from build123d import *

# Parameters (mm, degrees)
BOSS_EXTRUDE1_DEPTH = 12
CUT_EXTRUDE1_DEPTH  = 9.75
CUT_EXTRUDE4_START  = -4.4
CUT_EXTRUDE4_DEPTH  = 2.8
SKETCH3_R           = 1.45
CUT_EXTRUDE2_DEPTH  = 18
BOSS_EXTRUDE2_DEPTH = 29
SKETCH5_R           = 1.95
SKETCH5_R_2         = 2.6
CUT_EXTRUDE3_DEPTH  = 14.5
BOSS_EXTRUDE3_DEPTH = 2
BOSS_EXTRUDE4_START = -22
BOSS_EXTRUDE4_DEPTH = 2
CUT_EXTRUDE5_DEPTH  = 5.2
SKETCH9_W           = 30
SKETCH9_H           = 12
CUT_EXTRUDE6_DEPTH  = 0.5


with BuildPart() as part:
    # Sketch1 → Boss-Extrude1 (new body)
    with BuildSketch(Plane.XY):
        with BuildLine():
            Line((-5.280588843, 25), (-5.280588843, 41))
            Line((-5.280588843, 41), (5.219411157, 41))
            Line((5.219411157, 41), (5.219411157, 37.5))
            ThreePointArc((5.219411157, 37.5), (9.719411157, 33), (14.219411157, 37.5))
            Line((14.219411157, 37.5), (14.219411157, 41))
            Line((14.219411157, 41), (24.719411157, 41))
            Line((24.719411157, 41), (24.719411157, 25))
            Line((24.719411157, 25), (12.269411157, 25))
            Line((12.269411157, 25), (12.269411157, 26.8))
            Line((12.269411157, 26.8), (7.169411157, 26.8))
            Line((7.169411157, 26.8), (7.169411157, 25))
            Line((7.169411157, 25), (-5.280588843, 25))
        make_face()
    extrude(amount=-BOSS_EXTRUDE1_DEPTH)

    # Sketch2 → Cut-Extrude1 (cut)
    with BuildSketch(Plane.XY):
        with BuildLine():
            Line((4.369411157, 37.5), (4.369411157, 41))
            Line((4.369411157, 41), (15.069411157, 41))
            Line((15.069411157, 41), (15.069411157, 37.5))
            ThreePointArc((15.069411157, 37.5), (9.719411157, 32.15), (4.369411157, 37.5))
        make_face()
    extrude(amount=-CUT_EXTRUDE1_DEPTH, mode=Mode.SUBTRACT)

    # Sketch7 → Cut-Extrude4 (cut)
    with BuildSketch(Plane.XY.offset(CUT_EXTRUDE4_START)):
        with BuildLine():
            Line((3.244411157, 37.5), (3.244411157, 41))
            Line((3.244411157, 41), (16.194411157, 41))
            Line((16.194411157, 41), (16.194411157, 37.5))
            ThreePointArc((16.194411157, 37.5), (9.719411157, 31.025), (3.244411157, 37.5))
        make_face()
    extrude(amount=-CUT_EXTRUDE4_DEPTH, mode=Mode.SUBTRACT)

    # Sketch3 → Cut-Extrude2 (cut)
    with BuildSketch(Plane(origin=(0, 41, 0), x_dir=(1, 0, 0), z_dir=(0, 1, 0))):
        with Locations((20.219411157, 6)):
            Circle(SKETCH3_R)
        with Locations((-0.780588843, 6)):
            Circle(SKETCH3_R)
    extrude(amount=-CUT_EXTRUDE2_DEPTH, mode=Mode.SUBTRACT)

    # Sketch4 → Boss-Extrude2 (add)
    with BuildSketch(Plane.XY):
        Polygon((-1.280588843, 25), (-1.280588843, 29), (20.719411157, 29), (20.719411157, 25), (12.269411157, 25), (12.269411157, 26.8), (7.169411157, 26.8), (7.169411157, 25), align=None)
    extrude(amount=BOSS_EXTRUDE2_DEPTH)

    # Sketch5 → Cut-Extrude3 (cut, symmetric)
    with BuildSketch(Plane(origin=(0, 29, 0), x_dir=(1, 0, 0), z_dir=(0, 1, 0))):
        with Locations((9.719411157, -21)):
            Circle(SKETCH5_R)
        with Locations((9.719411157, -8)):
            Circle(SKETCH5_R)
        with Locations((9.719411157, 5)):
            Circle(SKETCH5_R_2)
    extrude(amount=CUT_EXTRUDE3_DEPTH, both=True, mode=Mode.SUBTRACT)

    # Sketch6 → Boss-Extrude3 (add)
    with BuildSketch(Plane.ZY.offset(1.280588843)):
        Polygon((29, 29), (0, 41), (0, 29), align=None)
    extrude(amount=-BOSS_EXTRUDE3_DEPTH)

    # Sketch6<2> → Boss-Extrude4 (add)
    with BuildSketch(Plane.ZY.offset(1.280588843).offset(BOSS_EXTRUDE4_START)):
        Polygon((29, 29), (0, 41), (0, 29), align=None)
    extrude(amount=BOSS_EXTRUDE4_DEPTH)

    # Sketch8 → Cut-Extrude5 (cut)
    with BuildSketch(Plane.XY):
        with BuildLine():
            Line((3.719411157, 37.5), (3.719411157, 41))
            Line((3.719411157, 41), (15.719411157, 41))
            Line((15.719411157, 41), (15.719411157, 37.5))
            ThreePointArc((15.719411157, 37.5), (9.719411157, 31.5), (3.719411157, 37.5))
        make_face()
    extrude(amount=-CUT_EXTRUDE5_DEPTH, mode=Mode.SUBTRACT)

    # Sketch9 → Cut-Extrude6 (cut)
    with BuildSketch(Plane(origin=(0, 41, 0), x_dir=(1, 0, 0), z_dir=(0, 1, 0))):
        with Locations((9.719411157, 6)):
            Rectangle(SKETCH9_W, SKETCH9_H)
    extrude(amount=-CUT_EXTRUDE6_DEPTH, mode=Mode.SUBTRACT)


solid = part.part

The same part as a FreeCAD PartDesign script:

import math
import FreeCAD as App
import Part
import Sketcher

V = App.Vector
Q = App.Units.Quantity


def add_polygon(sketch, points):
    """Adds a closed chain of lines whose ends are joined by coincident constraints."""
    first, n = sketch.GeometryCount, len(points)
    for a, b in zip(points, points[1:] + points[:1]):
        sketch.addGeometry(Part.LineSegment(App.Vector(*a, 0), App.Vector(*b, 0)), False)
    for i in range(n):
        sketch.addConstraint(Sketcher.Constraint("Coincident", first + i, 2, first + (i + 1) % n, 1))

doc = App.newDocument("Part")
body = doc.addObject("PartDesign::Body", "Body")

# Sketch on XY plane
sketch1 = body.newObject("Sketcher::SketchObject", "Sketch")
sketch1.AttachmentSupport = (doc.getObject("XY_Plane"), [""])
sketch1.MapMode = "FlatFace"
sketch1.addGeometry([
    Part.LineSegment(V(-5.3, 41, 0), V(-5.3, 25, 0)),  # 0
    Part.LineSegment(V(-5.3, 25, 0), V(7.2, 25, 0)),  # 1
    Part.LineSegment(V(7.2, 25, 0), V(7.2, 26.8, 0)),  # 2
    Part.LineSegment(V(7.2, 26.8, 0), V(12.3, 26.8, 0)),  # 3
    Part.LineSegment(V(12.3, 26.8, 0), V(12.3, 25, 0)),  # 4
    Part.LineSegment(V(12.3, 25, 0), V(24.7, 25, 0)),  # 5
    Part.LineSegment(V(24.7, 25, 0), V(24.7, 41, 0)),  # 6
    Part.LineSegment(V(24.7, 41, 0), V(14.2, 41, 0)),  # 7
    Part.LineSegment(V(14.2, 41, 0), V(14.2, 37.5, 0)),  # 8
    Part.ArcOfCircle(Part.Circle(V(9.7, 37.5, 0), V(0, 0, 1), 4.5), math.radians(180), math.radians(360)),  # 9
    Part.LineSegment(V(5.2, 37.5, 0), V(5.2, 41, 0)),  # 10
    Part.LineSegment(V(5.2, 41, 0), V(-5.3, 41, 0)),  # 11
], False)
sketch1.addConstraint([
    Sketcher.Constraint("Coincident", 0, 2, 1, 1),
    Sketcher.Constraint("Coincident", 1, 2, 2, 1),
    Sketcher.Constraint("Coincident", 2, 2, 3, 1),
    Sketcher.Constraint("Coincident", 3, 2, 4, 1),
    Sketcher.Constraint("Coincident", 4, 2, 5, 1),
    Sketcher.Constraint("Coincident", 5, 2, 6, 1),
    Sketcher.Constraint("Coincident", 6, 2, 7, 1),
    Sketcher.Constraint("Coincident", 7, 2, 8, 1),
    Sketcher.Constraint("Tangent", 8, 2, 9, 2),
    Sketcher.Constraint("Tangent", 9, 1, 10, 1),
    Sketcher.Constraint("Coincident", 10, 2, 11, 1),
    Sketcher.Constraint("Coincident", 11, 2, 0, 1),
    Sketcher.Constraint("Vertical", 0),
    Sketcher.Constraint("Horizontal", 1),
    Sketcher.Constraint("Vertical", 2),
    Sketcher.Constraint("Horizontal", 3),
    Sketcher.Constraint("Vertical", 4),
    Sketcher.Constraint("Horizontal", 5),
    Sketcher.Constraint("Vertical", 6),
    Sketcher.Constraint("Horizontal", 7),
    Sketcher.Constraint("Vertical", 8),
    Sketcher.Constraint("Vertical", 10),
    Sketcher.Constraint("Horizontal", 11),
    Sketcher.Constraint("Horizontal", 1, 2, 4, 2),
    Sketcher.Constraint("Horizontal", 7, 2, 10, 2),
    Sketcher.Constraint("Equal", 1, 5),
    Sketcher.Constraint("Equal", 7, 11),
    Sketcher.Constraint("Radius", 9, Q("4.5 mm")),
    Sketcher.Constraint("DistanceY", 0, 2, 0, 1, Q("16 mm")),
    Sketcher.Constraint("DistanceX", 3, 1, 3, 2, Q("5.1 mm")),
    Sketcher.Constraint("DistanceX", 7, 2, 7, 1, Q("10.5 mm")),
    Sketcher.Constraint("DistanceY", 2, 1, 2, 2, Q("1.8 mm")),
    Sketcher.Constraint("DistanceY", 8, 2, 8, 1, Q("3.5 mm")),
    Sketcher.Constraint("DistanceY", -1, 1, 0, 2, Q("25 mm")),
    Sketcher.Constraint("DistanceX", -1, 1, 9, 3, Q("9.719411 mm")),
])
pad1 = body.newObject("PartDesign::Pad", "Pad")
pad1.Profile = sketch1
pad1.Length = 12
pad1.Reversed = True

# Sketch on XY plane
sketch2 = body.newObject("Sketcher::SketchObject", "Sketch001")
sketch2.AttachmentSupport = (doc.getObject("XY_Plane"), [""])
sketch2.MapMode = "FlatFace"
sketch2.addGeometry([
    Part.LineSegment(V(4.4, 41, 0), V(4.4, 37.5, 0)),
    Part.ArcOfCircle(Part.Circle(V(9.7, 37.5, 0), V(0, 0, 1), 5.3), math.radians(180), math.radians(360)),
    Part.LineSegment(V(15.1, 37.5, 0), V(15.1, 41, 0)),
    Part.LineSegment(V(15.1, 41, 0), V(4.4, 41, 0)),
], False)
sketch2.addConstraint([
    Sketcher.Constraint("Tangent", 0, 2, 1, 1),
    Sketcher.Constraint("Tangent", 1, 2, 2, 1),
    Sketcher.Constraint("Coincident", 2, 2, 3, 1),
    Sketcher.Constraint("Coincident", 3, 2, 0, 1),
    Sketcher.Constraint("Vertical", 0),
    Sketcher.Constraint("Vertical", 2),
    Sketcher.Constraint("Horizontal", 3),
    Sketcher.Constraint("Radius", 1, Q("5.35 mm")),
    Sketcher.Constraint("DistanceY", 0, 2, 0, 1, Q("3.5 mm")),
    Sketcher.Constraint("DistanceY", -1, 1, 2, 2, Q("41 mm")),
    Sketcher.Constraint("DistanceX", -1, 1, 1, 3, Q("9.719411 mm")),
])
pocket1 = body.newObject("PartDesign::Pocket", "Pocket")
pocket1.Profile = sketch2
pocket1.Length = 9.75

# Sketch on XY plane
sketch3 = body.newObject("Sketcher::SketchObject", "Sketch002")
sketch3.AttachmentSupport = (doc.getObject("XY_Plane"), [""])
sketch3.MapMode = "FlatFace"
sketch3.AttachmentOffset = App.Placement(V(0, 0, -4.4), App.Rotation())
sketch3.addGeometry([
    Part.LineSegment(V(3.2, 41, 0), V(3.2, 37.5, 0)),
    Part.ArcOfCircle(Part.Circle(V(9.7, 37.5, 0), V(0, 0, 1), 6.5), math.radians(180), math.radians(360)),
    Part.LineSegment(V(16.2, 37.5, 0), V(16.2, 41, 0)),
    Part.LineSegment(V(16.2, 41, 0), V(3.2, 41, 0)),
], False)
sketch3.addConstraint([
    Sketcher.Constraint("Tangent", 0, 2, 1, 1),
    Sketcher.Constraint("Tangent", 1, 2, 2, 1),
    Sketcher.Constraint("Coincident", 2, 2, 3, 1),
    Sketcher.Constraint("Coincident", 3, 2, 0, 1),
    Sketcher.Constraint("Vertical", 0),
    Sketcher.Constraint("Vertical", 2),
    Sketcher.Constraint("Horizontal", 3),
    Sketcher.Constraint("DistanceY", 0, 2, 0, 1, Q("3.5 mm")),
    Sketcher.Constraint("DistanceY", -1, 1, 2, 2, Q("41 mm")),
    Sketcher.Constraint("Radius", 1, Q("6.475 mm")),
    Sketcher.Constraint("DistanceX", -1, 1, 1, 3, Q("9.719411 mm")),
])
pocket2 = body.newObject("PartDesign::Pocket", "Pocket001")
pocket2.Profile = sketch3
pocket2.Length = 2.8

# Sketch on XZ plane
sketch4 = body.newObject("Sketcher::SketchObject", "Sketch003")
sketch4.AttachmentSupport = (doc.getObject("XZ_Plane"), [""])
sketch4.MapMode = "FlatFace"
sketch4.AttachmentOffset = App.Placement(V(0, 0, -41), App.Rotation())
sketch4.addGeometry([
    Part.Circle(V(20.2, -6, 0), V(0, 0, 1), 1.4),
    Part.Circle(V(-0.8, -6, 0), V(0, 0, 1), 1.4),
], False)
sketch4.addConstraint([
    Sketcher.Constraint("Equal", 0, 1),
    Sketcher.Constraint("Horizontal", 0, 3, 1, 3),
    Sketcher.Constraint("Diameter", 0, Q("2.9 mm")),
    Sketcher.Constraint("DistanceY", 0, 3, -1, 1, Q("6 mm")),
    Sketcher.Constraint("DistanceX", 1, 3, 0, 3, Q("21 mm")),
    Sketcher.Constraint("DistanceX", -1, 1, 0, 3, Q("20.219411 mm")),
])
pocket3 = body.newObject("PartDesign::Pocket", "Pocket002")
pocket3.Profile = sketch4
pocket3.Length = 18
pocket3.Reversed = True

# Sketch on XY plane
sketch5 = body.newObject("Sketcher::SketchObject", "Sketch004")
sketch5.AttachmentSupport = (doc.getObject("XY_Plane"), [""])
sketch5.MapMode = "FlatFace"
add_polygon(sketch5, [(-1.3, 29), (-1.3, 25), (7.2, 25), (7.2, 26.8), (12.3, 26.8), (12.3, 25), (20.7, 25), (20.7, 29)])  # lines 0-7
sketch5.addConstraint([
    Sketcher.Constraint("Vertical", 0),
    Sketcher.Constraint("Horizontal", 1),
    Sketcher.Constraint("Vertical", 2),
    Sketcher.Constraint("Horizontal", 3),
    Sketcher.Constraint("Vertical", 4),
    Sketcher.Constraint("Horizontal", 5),
    Sketcher.Constraint("Vertical", 6),
    Sketcher.Constraint("Horizontal", 7),
    Sketcher.Constraint("Horizontal", 1, 2, 4, 2),
    Sketcher.Constraint("Equal", 1, 5),
    Sketcher.Constraint("DistanceX", 7, 2, 7, 1, Q("22 mm")),
    Sketcher.Constraint("DistanceY", 0, 2, 0, 1, Q("4 mm")),
    Sketcher.Constraint("DistanceX", 3, 1, 3, 2, Q("5.1 mm")),
    Sketcher.Constraint("DistanceY", 2, 1, 2, 2, Q("1.8 mm")),
    Sketcher.Constraint("DistanceY", -1, 1, 0, 2, Q("25 mm")),
    Sketcher.Constraint("DistanceX", 0, 2, -1, 1, Q("1.280589 mm")),
])
pad2 = body.newObject("PartDesign::Pad", "Pad001")
pad2.Profile = sketch5
pad2.Length = 29

# Sketch on XZ plane
sketch6 = body.newObject("Sketcher::SketchObject", "Sketch005")
sketch6.AttachmentSupport = (doc.getObject("XZ_Plane"), [""])
sketch6.MapMode = "FlatFace"
sketch6.AttachmentOffset = App.Placement(V(0, 0, -29), App.Rotation())
sketch6.addGeometry([
    Part.Circle(V(9.7, 21, 0), V(0, 0, 1), 1.9),
    Part.Circle(V(9.7, 8, 0), V(0, 0, 1), 1.9),
    Part.Circle(V(9.7, -5, 0), V(0, 0, 1), 2.6),
], False)
sketch6.addConstraint([
    Sketcher.Constraint("Equal", 0, 1),
    Sketcher.Constraint("Vertical", 0, 3, 1, 3),
    Sketcher.Constraint("Vertical", 1, 3, 2, 3),
    Sketcher.Constraint("Diameter", 0, Q("3.9 mm")),
    Sketcher.Constraint("Diameter", 2, Q("5.2 mm")),
    Sketcher.Constraint("DistanceY", -1, 1, 0, 3, Q("21 mm")),
    Sketcher.Constraint("DistanceY", -1, 1, 1, 3, Q("8 mm")),
    Sketcher.Constraint("DistanceY", 2, 3, -1, 1, Q("5 mm")),
    Sketcher.Constraint("DistanceX", -1, 1, 0, 3, Q("9.719411 mm")),
])
pocket4 = body.newObject("PartDesign::Pocket", "Pocket003")
pocket4.Profile = sketch6
pocket4.Length = 29
pocket4.Midplane = True

# Sketch on YZ plane
sketch7 = body.newObject("Sketcher::SketchObject", "Sketch006")
sketch7.AttachmentSupport = (doc.getObject("YZ_Plane"), [""])
sketch7.MapMode = "FlatFace"
sketch7.AttachmentOffset = App.Placement(V(0, 0, -1.280589), App.Rotation())
add_polygon(sketch7, [(29, 29), (41, 0), (29, 0)])  # lines 0-2
sketch7.addConstraint([
    Sketcher.Constraint("Horizontal", 1),
    Sketcher.Constraint("Vertical", 2),
    Sketcher.Constraint("PointOnObject", 0, 2, -1),
    Sketcher.Constraint("DistanceX", 1, 2, 1, 1, Q("12 mm")),
    Sketcher.Constraint("DistanceY", 2, 1, 2, 2, Q("29 mm")),
    Sketcher.Constraint("DistanceX", -1, 1, 0, 2, Q("41 mm")),
])
pad3 = body.newObject("PartDesign::Pad", "Pad002")
pad3.Profile = sketch7
pad3.Length = 2

# Sketch on YZ plane
sketch8 = body.newObject("Sketcher::SketchObject", "Sketch007")
sketch8.AttachmentSupport = (doc.getObject("YZ_Plane"), [""])
sketch8.MapMode = "FlatFace"
sketch8.AttachmentOffset = App.Placement(V(0, 0, 20.719411), App.Rotation())
add_polygon(sketch8, [(29, 29), (41, 0), (29, 0)])  # lines 0-2
sketch8.addConstraint([
    Sketcher.Constraint("Horizontal", 1),
    Sketcher.Constraint("Vertical", 2),
    Sketcher.Constraint("PointOnObject", 0, 2, -1),
    Sketcher.Constraint("DistanceX", 1, 2, 1, 1, Q("12 mm")),
    Sketcher.Constraint("DistanceY", 2, 1, 2, 2, Q("29 mm")),
    Sketcher.Constraint("DistanceX", -1, 1, 0, 2, Q("41 mm")),
])
pad4 = body.newObject("PartDesign::Pad", "Pad003")
pad4.Profile = sketch8
pad4.Length = 2
pad4.Reversed = True

# Sketch on XY plane
sketch9 = body.newObject("Sketcher::SketchObject", "Sketch008")
sketch9.AttachmentSupport = (doc.getObject("XY_Plane"), [""])
sketch9.MapMode = "FlatFace"
sketch9.addGeometry([
    Part.LineSegment(V(3.7, 41, 0), V(3.7, 37.5, 0)),
    Part.ArcOfCircle(Part.Circle(V(9.7, 37.5, 0), V(0, 0, 1), 6), math.radians(180), math.radians(360)),
    Part.LineSegment(V(15.7, 37.5, 0), V(15.7, 41, 0)),
    Part.LineSegment(V(15.7, 41, 0), V(3.7, 41, 0)),
], False)
sketch9.addConstraint([
    Sketcher.Constraint("Tangent", 0, 2, 1, 1),
    Sketcher.Constraint("Tangent", 1, 2, 2, 1),
    Sketcher.Constraint("Coincident", 2, 2, 3, 1),
    Sketcher.Constraint("Coincident", 3, 2, 0, 1),
    Sketcher.Constraint("Vertical", 0),
    Sketcher.Constraint("Vertical", 2),
    Sketcher.Constraint("Horizontal", 3),
    Sketcher.Constraint("Radius", 1, Q("6 mm")),
    Sketcher.Constraint("DistanceY", 0, 2, 0, 1, Q("3.5 mm")),
    Sketcher.Constraint("DistanceY", -1, 1, 2, 2, Q("41 mm")),
    Sketcher.Constraint("DistanceX", -1, 1, 1, 3, Q("9.719411 mm")),
])
pocket5 = body.newObject("PartDesign::Pocket", "Pocket004")
pocket5.Profile = sketch9
pocket5.Length = 5.2

# Sketch on XZ plane
sketch10 = body.newObject("Sketcher::SketchObject", "Sketch009")
sketch10.AttachmentSupport = (doc.getObject("XZ_Plane"), [""])
sketch10.MapMode = "FlatFace"
sketch10.AttachmentOffset = App.Placement(V(0, 0, -41), App.Rotation())
add_polygon(sketch10, [(-5, -12), (-5, 0), (25, 0), (25, -12)])  # lines 0-3
sketch10.addConstraint([
    Sketcher.Constraint("Vertical", 0),
    Sketcher.Constraint("Horizontal", 1),
    Sketcher.Constraint("Vertical", 2),
    Sketcher.Constraint("Horizontal", 3),
    Sketcher.Constraint("PointOnObject", 0, 2, -1),
    Sketcher.Constraint("DistanceX", 1, 1, 1, 2, Q("30 mm")),
    Sketcher.Constraint("DistanceY", 0, 1, 0, 2, Q("12 mm")),
    Sketcher.Constraint("DistanceX", 0, 2, -1, 1, Q("5.280589 mm")),
])
pocket6 = body.newObject("PartDesign::Pocket", "Pocket005")
pocket6.Profile = sketch10
pocket6.Length = 0.5
pocket6.Reversed = True

doc.recompute()
